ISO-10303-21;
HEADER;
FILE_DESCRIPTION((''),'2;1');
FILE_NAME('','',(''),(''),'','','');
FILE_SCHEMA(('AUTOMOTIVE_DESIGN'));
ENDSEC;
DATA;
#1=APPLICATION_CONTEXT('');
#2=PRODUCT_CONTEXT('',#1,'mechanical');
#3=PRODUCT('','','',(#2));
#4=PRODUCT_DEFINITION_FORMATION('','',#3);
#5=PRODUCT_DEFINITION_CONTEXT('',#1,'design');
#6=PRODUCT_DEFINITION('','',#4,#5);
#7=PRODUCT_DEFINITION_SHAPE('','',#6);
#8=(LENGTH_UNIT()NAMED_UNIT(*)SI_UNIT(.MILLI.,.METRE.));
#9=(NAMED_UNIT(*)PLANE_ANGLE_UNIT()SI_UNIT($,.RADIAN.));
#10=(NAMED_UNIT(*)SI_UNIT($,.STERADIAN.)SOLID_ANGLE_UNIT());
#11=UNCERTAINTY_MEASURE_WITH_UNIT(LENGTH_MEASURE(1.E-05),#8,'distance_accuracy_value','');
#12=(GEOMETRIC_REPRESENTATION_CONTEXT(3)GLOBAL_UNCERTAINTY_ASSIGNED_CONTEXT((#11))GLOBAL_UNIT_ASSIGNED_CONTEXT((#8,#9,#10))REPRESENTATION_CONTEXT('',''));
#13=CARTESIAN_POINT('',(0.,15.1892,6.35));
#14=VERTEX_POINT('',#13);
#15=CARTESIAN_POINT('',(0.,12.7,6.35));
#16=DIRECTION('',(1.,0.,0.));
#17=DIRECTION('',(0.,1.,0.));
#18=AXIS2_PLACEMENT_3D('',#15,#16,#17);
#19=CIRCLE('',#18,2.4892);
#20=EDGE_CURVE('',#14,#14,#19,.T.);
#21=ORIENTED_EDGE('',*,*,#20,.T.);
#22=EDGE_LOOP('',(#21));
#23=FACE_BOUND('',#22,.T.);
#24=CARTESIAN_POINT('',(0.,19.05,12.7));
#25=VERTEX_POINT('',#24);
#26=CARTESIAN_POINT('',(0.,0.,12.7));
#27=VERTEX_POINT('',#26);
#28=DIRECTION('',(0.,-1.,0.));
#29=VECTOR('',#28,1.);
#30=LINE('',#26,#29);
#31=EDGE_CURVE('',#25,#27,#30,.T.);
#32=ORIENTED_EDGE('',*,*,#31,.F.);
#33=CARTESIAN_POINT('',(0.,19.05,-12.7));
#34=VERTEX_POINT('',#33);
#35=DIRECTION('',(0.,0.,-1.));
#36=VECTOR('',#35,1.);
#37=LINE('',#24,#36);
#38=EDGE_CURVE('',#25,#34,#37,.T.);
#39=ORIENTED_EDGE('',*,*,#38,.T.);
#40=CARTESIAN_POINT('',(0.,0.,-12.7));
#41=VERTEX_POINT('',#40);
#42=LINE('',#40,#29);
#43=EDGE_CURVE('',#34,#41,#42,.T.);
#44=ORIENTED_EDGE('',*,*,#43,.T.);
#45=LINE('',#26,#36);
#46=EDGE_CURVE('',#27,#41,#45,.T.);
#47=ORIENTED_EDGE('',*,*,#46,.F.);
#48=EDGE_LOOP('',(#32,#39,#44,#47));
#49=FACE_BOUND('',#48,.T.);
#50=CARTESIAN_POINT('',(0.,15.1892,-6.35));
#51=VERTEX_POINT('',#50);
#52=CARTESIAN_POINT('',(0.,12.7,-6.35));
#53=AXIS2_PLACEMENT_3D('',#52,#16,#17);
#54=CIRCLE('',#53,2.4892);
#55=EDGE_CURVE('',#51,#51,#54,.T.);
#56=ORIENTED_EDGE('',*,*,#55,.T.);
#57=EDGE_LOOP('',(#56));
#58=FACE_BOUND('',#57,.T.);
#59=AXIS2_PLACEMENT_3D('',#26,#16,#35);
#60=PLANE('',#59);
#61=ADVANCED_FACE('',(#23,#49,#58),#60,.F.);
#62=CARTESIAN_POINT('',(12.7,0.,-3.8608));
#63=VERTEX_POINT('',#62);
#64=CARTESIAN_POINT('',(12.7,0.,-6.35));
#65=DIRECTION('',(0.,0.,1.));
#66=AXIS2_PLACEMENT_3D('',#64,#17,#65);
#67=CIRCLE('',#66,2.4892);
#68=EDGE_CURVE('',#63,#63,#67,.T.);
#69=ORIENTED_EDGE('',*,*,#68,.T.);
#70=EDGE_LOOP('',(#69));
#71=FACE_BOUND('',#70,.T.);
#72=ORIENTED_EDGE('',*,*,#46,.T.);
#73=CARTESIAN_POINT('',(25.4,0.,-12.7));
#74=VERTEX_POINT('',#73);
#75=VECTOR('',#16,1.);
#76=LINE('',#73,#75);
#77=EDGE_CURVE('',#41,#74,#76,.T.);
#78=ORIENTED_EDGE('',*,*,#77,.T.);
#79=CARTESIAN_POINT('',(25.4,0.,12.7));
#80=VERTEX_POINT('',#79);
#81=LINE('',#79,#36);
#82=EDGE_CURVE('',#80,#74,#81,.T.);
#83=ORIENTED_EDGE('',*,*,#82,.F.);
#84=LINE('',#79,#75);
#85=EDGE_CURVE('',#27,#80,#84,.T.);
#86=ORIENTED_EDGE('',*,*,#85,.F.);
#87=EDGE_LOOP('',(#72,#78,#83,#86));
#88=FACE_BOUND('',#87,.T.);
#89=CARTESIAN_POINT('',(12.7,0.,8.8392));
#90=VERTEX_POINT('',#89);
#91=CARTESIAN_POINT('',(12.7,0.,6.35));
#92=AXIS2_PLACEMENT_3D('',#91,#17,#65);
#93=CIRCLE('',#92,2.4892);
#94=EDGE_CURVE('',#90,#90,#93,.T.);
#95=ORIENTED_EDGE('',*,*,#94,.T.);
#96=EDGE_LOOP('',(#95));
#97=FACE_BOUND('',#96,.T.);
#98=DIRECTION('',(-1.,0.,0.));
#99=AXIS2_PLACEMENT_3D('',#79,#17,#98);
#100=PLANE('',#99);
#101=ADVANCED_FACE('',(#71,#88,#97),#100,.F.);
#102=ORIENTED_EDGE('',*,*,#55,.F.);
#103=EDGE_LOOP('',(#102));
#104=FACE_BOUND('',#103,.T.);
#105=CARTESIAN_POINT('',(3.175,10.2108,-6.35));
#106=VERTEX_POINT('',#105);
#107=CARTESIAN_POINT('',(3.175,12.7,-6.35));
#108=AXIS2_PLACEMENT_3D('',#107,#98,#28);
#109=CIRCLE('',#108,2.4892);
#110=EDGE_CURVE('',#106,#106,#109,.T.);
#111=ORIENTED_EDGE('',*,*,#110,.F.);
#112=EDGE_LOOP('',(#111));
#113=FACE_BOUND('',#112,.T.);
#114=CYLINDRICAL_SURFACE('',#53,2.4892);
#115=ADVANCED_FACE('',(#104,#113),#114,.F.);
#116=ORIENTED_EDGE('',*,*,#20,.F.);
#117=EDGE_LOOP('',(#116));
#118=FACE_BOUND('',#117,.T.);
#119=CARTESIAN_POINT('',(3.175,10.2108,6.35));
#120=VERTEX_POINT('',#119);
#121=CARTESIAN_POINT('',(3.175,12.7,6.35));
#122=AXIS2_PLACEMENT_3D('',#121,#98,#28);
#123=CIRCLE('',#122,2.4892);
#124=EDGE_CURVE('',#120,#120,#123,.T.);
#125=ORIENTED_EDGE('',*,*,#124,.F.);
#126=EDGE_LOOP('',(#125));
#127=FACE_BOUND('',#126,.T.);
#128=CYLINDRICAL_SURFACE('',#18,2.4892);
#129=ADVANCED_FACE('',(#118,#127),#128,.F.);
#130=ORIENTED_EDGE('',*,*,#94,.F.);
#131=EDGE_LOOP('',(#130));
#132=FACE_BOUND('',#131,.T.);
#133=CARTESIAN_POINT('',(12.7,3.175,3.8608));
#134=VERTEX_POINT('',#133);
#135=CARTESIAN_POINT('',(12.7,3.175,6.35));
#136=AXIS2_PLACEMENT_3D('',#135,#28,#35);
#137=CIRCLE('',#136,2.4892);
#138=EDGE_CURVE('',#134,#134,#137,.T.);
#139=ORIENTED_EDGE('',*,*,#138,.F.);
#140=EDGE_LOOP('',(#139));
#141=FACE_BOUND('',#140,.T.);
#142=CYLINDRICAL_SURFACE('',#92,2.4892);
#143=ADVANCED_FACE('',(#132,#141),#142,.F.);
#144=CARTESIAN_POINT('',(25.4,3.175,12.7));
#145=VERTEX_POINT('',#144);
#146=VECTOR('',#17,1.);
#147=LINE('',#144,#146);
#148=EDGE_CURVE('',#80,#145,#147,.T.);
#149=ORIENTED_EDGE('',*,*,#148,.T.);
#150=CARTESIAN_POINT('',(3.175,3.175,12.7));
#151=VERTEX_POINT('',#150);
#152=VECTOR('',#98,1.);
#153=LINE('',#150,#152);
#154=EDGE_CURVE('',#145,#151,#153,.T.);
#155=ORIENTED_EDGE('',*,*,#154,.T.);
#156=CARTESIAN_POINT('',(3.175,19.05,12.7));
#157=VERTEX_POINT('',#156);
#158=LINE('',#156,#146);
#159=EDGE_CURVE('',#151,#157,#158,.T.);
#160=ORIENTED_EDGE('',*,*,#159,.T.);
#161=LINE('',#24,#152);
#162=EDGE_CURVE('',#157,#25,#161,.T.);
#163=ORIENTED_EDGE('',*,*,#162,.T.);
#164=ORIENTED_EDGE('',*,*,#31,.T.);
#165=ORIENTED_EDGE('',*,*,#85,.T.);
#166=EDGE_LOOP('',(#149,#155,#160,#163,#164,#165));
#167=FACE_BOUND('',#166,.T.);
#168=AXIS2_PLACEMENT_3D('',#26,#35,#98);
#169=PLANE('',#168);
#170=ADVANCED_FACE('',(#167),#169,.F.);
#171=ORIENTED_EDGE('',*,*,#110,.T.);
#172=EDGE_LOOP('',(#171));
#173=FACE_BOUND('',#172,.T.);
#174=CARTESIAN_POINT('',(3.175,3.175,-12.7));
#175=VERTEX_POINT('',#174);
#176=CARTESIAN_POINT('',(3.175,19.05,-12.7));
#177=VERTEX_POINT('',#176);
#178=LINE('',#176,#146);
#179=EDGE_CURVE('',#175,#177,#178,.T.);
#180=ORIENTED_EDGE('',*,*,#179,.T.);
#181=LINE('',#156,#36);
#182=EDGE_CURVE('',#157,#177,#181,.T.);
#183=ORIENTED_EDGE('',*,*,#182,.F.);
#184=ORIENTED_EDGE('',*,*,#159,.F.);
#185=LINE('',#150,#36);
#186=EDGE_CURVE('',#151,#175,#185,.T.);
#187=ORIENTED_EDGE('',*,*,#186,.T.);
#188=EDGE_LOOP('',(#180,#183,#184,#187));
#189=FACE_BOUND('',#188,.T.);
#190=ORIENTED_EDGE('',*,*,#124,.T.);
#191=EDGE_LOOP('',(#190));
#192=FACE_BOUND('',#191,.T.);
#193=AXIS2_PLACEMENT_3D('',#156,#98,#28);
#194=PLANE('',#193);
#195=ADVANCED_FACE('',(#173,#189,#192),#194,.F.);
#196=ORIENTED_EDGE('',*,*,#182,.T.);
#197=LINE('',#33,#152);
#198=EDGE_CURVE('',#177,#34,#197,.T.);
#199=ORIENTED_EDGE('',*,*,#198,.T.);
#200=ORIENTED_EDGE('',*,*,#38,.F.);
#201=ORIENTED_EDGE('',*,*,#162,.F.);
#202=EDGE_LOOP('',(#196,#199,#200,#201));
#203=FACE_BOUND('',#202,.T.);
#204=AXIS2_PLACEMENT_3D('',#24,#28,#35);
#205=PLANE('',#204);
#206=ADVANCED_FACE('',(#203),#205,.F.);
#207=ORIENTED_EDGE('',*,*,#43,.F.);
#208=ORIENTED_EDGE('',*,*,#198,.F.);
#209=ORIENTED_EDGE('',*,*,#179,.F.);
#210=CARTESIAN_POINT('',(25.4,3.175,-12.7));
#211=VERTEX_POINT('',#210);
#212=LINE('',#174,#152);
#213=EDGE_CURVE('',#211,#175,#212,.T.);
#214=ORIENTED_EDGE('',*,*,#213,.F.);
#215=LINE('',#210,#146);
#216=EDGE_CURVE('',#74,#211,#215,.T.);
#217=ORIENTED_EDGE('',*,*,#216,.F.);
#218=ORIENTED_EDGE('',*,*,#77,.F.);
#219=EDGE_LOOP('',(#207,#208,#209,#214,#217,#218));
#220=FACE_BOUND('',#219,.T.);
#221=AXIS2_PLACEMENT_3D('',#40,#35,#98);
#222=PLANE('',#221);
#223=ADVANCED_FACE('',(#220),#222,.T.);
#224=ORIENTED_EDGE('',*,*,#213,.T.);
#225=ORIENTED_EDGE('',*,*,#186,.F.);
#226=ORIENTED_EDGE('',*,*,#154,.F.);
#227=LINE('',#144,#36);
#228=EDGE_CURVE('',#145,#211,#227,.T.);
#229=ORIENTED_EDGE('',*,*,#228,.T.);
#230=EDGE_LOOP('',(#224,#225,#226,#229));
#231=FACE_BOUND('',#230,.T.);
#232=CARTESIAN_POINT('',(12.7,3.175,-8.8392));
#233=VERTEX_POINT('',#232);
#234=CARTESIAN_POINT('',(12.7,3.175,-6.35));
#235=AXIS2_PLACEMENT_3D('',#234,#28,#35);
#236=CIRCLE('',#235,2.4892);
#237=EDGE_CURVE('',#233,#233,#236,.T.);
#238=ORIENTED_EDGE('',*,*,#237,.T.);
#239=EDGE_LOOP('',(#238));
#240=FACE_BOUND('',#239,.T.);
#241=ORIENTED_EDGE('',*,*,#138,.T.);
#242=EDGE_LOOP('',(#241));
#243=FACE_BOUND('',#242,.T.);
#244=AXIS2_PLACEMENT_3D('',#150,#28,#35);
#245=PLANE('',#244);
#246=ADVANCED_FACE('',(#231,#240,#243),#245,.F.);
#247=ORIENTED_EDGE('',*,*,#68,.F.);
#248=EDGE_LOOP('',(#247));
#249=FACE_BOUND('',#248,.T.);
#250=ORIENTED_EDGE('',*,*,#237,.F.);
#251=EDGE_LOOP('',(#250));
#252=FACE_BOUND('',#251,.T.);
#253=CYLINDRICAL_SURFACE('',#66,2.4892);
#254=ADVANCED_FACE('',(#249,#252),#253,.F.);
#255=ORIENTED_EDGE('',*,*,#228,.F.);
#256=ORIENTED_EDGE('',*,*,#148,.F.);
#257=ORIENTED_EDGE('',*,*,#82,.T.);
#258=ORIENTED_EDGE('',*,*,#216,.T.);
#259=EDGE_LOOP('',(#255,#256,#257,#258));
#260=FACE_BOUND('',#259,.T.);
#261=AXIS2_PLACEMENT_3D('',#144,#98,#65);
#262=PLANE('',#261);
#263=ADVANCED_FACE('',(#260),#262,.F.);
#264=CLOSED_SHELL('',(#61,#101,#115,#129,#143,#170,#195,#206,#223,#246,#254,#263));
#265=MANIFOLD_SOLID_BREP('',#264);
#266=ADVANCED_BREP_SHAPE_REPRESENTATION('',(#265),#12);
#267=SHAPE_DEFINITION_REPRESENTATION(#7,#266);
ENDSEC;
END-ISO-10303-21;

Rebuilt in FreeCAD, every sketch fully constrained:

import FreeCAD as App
import Part
import Sketcher
Q = App.Units.Quantity

doc = App.newDocument("Part")
body = doc.addObject("PartDesign::Body", "Body")

sketch1 = body.newObject("Sketcher::SketchObject", "Sketch")
sketch1.AttachmentSupport = (doc.getObject("XY_Plane"), [""])
sketch1.MapMode = "FlatFace"
sketch1.addGeometry([
    Part.LineSegment(App.Vector(0, 19.1, 0), App.Vector(0, 0, 0)),
    Part.LineSegment(App.Vector(0, 0, 0), App.Vector(25.4, 0, 0)),
    Part.LineSegment(App.Vector(25.4, 0, 0), App.Vector(25.4, 3.2, 0)),
    Part.LineSegment(App.Vector(25.4, 3.2, 0), App.Vector(3.2, 3.2, 0)),
    Part.LineSegment(App.Vector(3.2, 3.2, 0), App.Vector(3.2, 19.1, 0)),
    Part.LineSegment(App.Vector(3.2, 19.1, 0), App.Vector(0, 19.1, 0)),
], False)
sketch1.addConstraint([
    Sketcher.Constraint("Coincident", 0, 2, 1, 1),
    Sketcher.Constraint("Coincident", 1, 2, 2, 1),
    Sketcher.Constraint("Coincident", 2, 2, 3, 1),
    Sketcher.Constraint("Coincident", 3, 2, 4, 1),
    Sketcher.Constraint("Coincident", 4, 2, 5, 1),
    Sketcher.Constraint("Coincident", 5, 2, 0, 1),
    Sketcher.Constraint("Vertical", 0),
    Sketcher.Constraint("Horizontal", 1),
    Sketcher.Constraint("Vertical", 2),
    Sketcher.Constraint("Horizontal", 3),
    Sketcher.Constraint("Vertical", 4),
    Sketcher.Constraint("Horizontal", 5),
    Sketcher.Constraint("Coincident", 0, 2, -1, 1),
    Sketcher.Constraint("Equal", 5, 2),
    Sketcher.Constraint("DistanceX", 1, 1, 1, 2, Q("1 in")),
    Sketcher.Constraint("DistanceY", 0, 2, 0, 1, Q("0.75 in")),
    Sketcher.Constraint("DistanceX", 3, 2, 3, 1, Q("0.875 in")),
])
pad1 = body.newObject("PartDesign::Pad", "Pad")
pad1.Profile = sketch1
pad1.Length = Q("1 in")
pad1.Midplane = True

sketch2 = body.newObject("Sketcher::SketchObject", "Sketch001")
sketch2.AttachmentSupport = (doc.getObject("XZ_Plane"), [""])
sketch2.MapMode = "FlatFace"
sketch2.AttachmentOffset = App.Placement(App.Vector(0, 0, -0.125 * 25.4), App.Rotation())
sketch2.addGeometry([
    Part.Circle(App.Vector(12.7, 6.3, 0), App.Vector(0, 0, 1), 2.5),
    Part.Circle(App.Vector(12.7, -6.3, 0), App.Vector(0, 0, 1), 2.5),
], False)
sketch2.addConstraint([
    Sketcher.Constraint("Equal", 0, 1),
    Sketcher.Constraint("Symmetric", 0, 3, 1, 3, -1),
    Sketcher.Constraint("Diameter", 0, Q("0.196 in")),
    Sketcher.Constraint("DistanceX", -1, 1, 0, 3, Q("0.5 in")),
    Sketcher.Constraint("DistanceY", 1, 3, 0, 3, Q("0.5 in")),
])
pocket1 = body.newObject("PartDesign::Pocket", "Pocket")
pocket1.Profile = sketch2
pocket1.Type = "ThroughAll"
pocket1.Midplane = True

sketch3 = body.newObject("Sketcher::SketchObject", "Sketch002")
sketch3.AttachmentSupport = (doc.getObject("YZ_Plane"), [""])
sketch3.MapMode = "FlatFace"
sketch3.AttachmentOffset = App.Placement(App.Vector(0, 0, 0.125 * 25.4), App.Rotation())
sketch3.addGeometry([
    Part.Circle(App.Vector(12.7, 6.3, 0), App.Vector(0, 0, 1), 2.5),
    Part.Circle(App.Vector(12.7, -6.3, 0), App.Vector(0, 0, 1), 2.5),
], False)
sketch3.addConstraint([
    Sketcher.Constraint("Equal", 0, 1),
    Sketcher.Constraint("Symmetric", 0, 3, 1, 3, -1),
    Sketcher.Constraint("Diameter", 0, Q("0.196 in")),
    Sketcher.Constraint("DistanceX", -1, 1, 0, 3, Q("0.5 in")),
    Sketcher.Constraint("DistanceY", 1, 3, 0, 3, Q("0.5 in")),
])
pocket2 = body.newObject("PartDesign::Pocket", "Pocket001")
pocket2.Profile = sketch3
pocket2.Type = "ThroughAll"
pocket2.Midplane = True

doc.recompute()
